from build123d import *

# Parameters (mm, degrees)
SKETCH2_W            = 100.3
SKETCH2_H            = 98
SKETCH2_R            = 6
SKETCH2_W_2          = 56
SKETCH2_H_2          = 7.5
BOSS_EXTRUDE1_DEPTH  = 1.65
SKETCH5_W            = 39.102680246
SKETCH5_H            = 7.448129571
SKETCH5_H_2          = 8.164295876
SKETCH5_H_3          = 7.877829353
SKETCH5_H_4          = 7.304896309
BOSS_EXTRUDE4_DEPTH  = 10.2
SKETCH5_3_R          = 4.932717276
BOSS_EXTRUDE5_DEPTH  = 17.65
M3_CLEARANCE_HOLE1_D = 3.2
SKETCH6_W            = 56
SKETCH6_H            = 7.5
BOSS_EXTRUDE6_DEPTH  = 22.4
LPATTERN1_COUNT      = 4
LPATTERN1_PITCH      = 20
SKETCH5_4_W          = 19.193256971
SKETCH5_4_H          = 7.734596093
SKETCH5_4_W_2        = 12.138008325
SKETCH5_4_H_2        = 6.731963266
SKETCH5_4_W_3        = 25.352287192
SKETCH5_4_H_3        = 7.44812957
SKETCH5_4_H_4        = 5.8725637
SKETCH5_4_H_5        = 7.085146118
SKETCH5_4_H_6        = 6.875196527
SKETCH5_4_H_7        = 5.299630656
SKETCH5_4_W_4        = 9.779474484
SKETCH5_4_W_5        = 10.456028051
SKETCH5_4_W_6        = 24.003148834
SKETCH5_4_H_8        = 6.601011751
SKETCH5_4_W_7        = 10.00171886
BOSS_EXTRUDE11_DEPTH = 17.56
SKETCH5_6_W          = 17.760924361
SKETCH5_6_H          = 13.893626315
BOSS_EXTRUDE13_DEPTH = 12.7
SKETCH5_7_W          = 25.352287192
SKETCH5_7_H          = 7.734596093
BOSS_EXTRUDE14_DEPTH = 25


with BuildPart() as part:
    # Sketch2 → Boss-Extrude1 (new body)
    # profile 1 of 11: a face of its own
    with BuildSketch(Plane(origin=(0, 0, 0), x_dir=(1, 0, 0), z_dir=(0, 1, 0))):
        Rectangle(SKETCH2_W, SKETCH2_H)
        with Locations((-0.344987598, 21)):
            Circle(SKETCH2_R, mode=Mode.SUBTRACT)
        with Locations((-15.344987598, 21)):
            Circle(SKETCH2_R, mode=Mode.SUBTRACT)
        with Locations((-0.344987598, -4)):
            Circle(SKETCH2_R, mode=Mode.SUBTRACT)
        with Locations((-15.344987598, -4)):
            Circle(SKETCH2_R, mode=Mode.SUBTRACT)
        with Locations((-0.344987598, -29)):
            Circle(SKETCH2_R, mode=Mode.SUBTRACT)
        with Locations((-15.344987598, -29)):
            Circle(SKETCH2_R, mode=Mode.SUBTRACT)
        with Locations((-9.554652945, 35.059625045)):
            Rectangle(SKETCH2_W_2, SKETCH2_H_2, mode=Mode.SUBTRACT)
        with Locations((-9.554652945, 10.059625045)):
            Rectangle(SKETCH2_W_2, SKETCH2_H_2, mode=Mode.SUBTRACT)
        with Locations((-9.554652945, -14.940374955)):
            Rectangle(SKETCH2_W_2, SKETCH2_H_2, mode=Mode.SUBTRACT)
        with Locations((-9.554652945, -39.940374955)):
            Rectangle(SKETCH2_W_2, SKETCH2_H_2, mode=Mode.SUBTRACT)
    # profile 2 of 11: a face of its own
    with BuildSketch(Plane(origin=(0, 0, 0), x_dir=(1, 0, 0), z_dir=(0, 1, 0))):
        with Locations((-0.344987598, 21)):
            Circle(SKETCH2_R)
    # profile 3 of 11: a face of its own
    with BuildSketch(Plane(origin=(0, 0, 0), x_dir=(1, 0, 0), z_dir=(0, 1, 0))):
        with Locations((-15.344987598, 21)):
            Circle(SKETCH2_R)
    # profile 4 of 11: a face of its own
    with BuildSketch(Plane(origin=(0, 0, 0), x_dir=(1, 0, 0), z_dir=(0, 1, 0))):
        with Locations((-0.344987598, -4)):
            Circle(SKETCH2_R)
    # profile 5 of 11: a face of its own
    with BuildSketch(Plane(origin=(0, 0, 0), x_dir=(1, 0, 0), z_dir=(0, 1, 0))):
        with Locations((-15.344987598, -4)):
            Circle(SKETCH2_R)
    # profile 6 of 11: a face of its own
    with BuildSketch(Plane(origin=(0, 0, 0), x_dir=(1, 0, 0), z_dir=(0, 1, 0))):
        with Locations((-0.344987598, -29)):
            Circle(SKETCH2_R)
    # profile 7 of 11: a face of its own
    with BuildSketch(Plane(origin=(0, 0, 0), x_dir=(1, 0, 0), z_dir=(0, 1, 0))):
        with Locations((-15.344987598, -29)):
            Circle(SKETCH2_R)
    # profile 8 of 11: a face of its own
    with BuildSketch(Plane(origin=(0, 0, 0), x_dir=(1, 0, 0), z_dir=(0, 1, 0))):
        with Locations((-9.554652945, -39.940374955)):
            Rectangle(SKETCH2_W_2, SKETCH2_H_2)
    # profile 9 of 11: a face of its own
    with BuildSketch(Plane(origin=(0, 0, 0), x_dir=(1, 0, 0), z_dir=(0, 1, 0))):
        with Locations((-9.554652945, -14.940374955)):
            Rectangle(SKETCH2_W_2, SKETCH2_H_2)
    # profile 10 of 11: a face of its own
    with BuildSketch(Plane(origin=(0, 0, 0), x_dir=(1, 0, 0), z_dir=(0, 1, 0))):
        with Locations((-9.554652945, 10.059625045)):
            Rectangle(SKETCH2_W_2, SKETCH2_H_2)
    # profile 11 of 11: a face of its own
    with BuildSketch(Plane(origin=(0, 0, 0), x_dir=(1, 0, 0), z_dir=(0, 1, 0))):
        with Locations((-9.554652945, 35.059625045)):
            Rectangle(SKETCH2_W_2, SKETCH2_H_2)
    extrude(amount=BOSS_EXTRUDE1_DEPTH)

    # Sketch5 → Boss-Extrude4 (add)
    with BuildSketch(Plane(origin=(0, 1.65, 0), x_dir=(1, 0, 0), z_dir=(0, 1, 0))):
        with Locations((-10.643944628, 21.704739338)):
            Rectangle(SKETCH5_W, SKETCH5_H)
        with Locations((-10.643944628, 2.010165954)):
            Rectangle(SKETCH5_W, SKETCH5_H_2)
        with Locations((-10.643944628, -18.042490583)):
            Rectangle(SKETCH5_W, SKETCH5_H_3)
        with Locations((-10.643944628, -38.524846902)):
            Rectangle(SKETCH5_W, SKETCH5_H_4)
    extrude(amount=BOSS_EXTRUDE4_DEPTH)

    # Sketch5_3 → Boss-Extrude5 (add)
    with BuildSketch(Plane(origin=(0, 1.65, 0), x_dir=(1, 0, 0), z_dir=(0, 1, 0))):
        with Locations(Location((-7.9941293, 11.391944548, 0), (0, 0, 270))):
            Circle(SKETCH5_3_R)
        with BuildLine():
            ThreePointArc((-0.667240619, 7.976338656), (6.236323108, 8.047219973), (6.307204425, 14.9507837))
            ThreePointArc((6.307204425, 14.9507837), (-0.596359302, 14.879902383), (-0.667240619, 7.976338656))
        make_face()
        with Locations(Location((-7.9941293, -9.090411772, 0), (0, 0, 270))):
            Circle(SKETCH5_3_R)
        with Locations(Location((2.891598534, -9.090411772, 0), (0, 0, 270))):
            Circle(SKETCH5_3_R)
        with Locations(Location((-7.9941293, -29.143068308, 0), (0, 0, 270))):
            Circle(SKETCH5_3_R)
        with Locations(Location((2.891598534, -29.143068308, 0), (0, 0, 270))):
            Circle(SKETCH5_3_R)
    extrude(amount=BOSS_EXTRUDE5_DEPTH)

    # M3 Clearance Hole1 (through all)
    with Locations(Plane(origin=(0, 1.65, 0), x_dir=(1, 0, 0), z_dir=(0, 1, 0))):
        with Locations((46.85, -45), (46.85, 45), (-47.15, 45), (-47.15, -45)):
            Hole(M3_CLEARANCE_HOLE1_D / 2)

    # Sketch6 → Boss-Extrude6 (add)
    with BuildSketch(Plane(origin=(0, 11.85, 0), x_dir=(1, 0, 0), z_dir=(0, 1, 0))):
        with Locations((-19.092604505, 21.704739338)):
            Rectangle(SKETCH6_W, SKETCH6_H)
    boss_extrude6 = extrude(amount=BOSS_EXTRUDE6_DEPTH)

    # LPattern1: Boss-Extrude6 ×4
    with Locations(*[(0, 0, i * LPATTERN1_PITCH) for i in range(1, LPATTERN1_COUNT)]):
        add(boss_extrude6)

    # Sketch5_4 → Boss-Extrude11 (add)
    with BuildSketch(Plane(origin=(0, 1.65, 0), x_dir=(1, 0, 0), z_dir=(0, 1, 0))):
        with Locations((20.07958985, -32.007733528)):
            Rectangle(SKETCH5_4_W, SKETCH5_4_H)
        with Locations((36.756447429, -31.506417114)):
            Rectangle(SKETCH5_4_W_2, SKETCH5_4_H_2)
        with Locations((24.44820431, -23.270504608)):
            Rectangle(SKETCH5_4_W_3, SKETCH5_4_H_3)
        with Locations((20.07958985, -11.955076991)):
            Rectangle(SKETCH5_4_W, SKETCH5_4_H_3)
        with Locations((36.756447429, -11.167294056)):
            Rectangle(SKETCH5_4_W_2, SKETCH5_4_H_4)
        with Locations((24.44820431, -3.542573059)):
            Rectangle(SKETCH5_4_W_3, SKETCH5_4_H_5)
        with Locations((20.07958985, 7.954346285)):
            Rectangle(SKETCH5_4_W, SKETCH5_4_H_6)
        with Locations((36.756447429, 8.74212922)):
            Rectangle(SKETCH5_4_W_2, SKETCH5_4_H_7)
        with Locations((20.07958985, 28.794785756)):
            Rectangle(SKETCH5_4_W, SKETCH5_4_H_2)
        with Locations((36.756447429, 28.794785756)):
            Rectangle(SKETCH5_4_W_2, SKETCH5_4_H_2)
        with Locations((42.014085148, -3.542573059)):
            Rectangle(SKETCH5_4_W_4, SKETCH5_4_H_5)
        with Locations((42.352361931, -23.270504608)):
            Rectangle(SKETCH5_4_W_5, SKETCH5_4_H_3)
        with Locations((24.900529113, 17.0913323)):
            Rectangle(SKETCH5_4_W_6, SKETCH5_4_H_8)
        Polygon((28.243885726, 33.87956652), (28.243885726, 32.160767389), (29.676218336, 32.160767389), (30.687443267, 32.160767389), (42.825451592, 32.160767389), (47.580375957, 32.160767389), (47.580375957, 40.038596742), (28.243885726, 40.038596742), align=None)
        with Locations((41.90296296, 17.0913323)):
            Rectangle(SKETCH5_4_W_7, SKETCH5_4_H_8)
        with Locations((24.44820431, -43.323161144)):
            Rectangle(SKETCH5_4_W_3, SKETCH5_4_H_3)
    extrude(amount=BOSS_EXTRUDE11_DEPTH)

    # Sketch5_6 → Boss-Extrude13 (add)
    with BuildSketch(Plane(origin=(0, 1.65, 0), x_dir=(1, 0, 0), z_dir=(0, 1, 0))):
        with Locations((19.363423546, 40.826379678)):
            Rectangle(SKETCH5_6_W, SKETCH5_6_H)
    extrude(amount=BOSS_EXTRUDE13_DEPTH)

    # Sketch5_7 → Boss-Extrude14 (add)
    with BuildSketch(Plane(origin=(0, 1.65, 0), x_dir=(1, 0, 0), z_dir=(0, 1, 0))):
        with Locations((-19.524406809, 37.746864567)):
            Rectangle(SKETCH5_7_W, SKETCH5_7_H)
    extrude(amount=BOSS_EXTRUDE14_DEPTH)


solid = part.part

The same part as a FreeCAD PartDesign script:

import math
import FreeCAD as App
import Part
import Sketcher

V = App.Vector


def add_polygon(sketch, points):
    """Adds a closed chain of lines whose ends are joined by coincident constraints."""
    first, n = sketch.GeometryCount, len(points)
    for a, b in zip(points, points[1:] + points[:1]):
        sketch.addGeometry(Part.LineSegment(App.Vector(*a, 0), App.Vector(*b, 0)), False)
    for i in range(n):
        sketch.addConstraint(Sketcher.Constraint("Coincident", first + i, 2, first + (i + 1) % n, 1))

doc = App.newDocument("Part")
body = doc.addObject("PartDesign::Body", "Body")

# Sketch on XZ plane
sketch1 = body.newObject("Sketcher::SketchObject", "Sketch")
sketch1.AttachmentSupport = (doc.getObject("XZ_Plane"), [""])
sketch1.MapMode = "FlatFace"
add_polygon(sketch1, [(-50, -49), (-50, 49), (50, 49), (50, -49)])  # lines 0-3
sketch1.addConstraint([
    Sketcher.Constraint("Vertical", 0),
    Sketcher.Constraint("Horizontal", 1),
    Sketcher.Constraint("Vertical", 2),
    Sketcher.Constraint("Horizontal", 3),
    Sketcher.Constraint("Symmetric", 0, 2, 2, 2, -1, 1),
    Sketcher.Constraint("DistanceY", 0, 1, 0, 2, 98.0),
    Sketcher.Constraint("DistanceX", 1, 1, 1, 2, 100.3),
])
pad1 = body.newObject("PartDesign::Pad", "Pad")
pad1.Profile = sketch1
pad1.Length = 1.65
pad1.Reversed = True

# Sketch on XZ plane
sketch2 = body.newObject("Sketcher::SketchObject", "Sketch001")
sketch2.AttachmentSupport = (doc.getObject("XZ_Plane"), [""])
sketch2.MapMode = "FlatFace"
sketch2.AttachmentOffset = App.Placement(V(0, 0, -1.65), App.Rotation())
add_polygon(sketch2, [(-30, -25), (-30, -18), (9, -18), (9, -25)])  # lines 0-3
add_polygon(sketch2, [(-30, -6), (-30, 2), (9, 2), (9, -6)])  # lines 4-7
add_polygon(sketch2, [(-30, 14), (-30, 22), (9, 22), (9, 14)])  # lines 8-11
add_polygon(sketch2, [(-30, 35), (-30, 42), (9, 42), (9, 35)])  # lines 12-15
sketch2.addConstraint([
    Sketcher.Constraint("Vertical", 0),
    Sketcher.Constraint("Horizontal", 1),
    Sketcher.Constraint("Vertical", 2),
    Sketcher.Constraint("Horizontal", 3),
    Sketcher.Constraint("Vertical", 4),
    Sketcher.Constraint("Horizontal", 5),
    Sketcher.Constraint("Vertical", 6),
    Sketcher.Constraint("Horizontal", 7),
    Sketcher.Constraint("Vertical", 8),
    Sketcher.Constraint("Horizontal", 9),
    Sketcher.Constraint("Vertical", 10),
    Sketcher.Constraint("Horizontal", 11),
    Sketcher.Constraint("Vertical", 12),
    Sketcher.Constraint("Horizontal", 13),
    Sketcher.Constraint("Vertical", 14),
    Sketcher.Constraint("Horizontal", 15),
    Sketcher.Constraint("Vertical", 3, 2, 4, 2),
    Sketcher.Constraint("Vertical", 2, 2, 5, 2),
    Sketcher.Constraint("Vertical", 7, 2, 8, 2),
    Sketcher.Constraint("Vertical", 6, 2, 9, 2),
    Sketcher.Constraint("Vertical", 11, 2, 12, 2),
    Sketcher.Constraint("Vertical", 10, 2, 13, 2),
    Sketcher.Constraint("DistanceX", 1, 1, 1, 2, 39.10268),
    Sketcher.Constraint("DistanceY", 0, 1, 0, 2, 7.44813),
    Sketcher.Constraint("DistanceY", 8, 1, 8, 2, 7.877829),
    Sketcher.Constraint("DistanceY", -1, 1, 14, 2, 34.872399),
    Sketcher.Constraint("DistanceY", 4, 1, 4, 2, 8.164296),
    Sketcher.Constraint("DistanceY", 12, 1, 12, 2, 7.304896),
    Sketcher.Constraint("DistanceY", -1, 1, 4, 2, 2.071982),
    Sketcher.Constraint("DistanceY", 1, 2, 6, 2, 11.888361),
    Sketcher.Constraint("DistanceY", 7, 2, 8, 2, 28.073719),
    Sketcher.Constraint("DistanceX", 0, 2, -1, 1, 30.195285),
])
pad2 = body.newObject("PartDesign::Pad", "Pad001")
pad2.Profile = sketch2
pad2.Length = 10.2
pad2.Reversed = True

# Sketch on XZ plane
sketch3 = body.newObject("Sketcher::SketchObject", "Sketch002")
sketch3.AttachmentSupport = (doc.getObject("XZ_Plane"), [""])
sketch3.MapMode = "FlatFace"
sketch3.AttachmentOffset = App.Placement(V(0, 0, -1.65), App.Rotation())
sketch3.addGeometry([
    Part.Circle(V(-8, -11.4, 0), V(0, 0, 1), 4.9),  # 0
    Part.ArcOfCircle(Part.Circle(V(2.7, -11.5, 0), V(0, 0, 1), 4.9), math.radians(-44), math.radians(134)),  # 1
    Part.ArcOfCircle(Part.Circle(V(2.9, -11.4, 0), V(0, 0, 1), 4.9), math.radians(136), math.radians(314)),  # 2
    Part.Circle(V(-8, 9.1, 0), V(0, 0, 1), 4.9),  # 3
    Part.Circle(V(2.9, 9.1, 0), V(0, 0, 1), 4.9),  # 4
    Part.Circle(V(-8, 29.1, 0), V(0, 0, 1), 4.9),  # 5
    Part.Circle(V(2.9, 29.1, 0), V(0, 0, 1), 4.9),  # 6
], False)
sketch3.addConstraint([
    Sketcher.Constraint("Coincident", 1, 1, 2, 2),
    Sketcher.Constraint("Coincident", 2, 1, 1, 2),
    Sketcher.Constraint("Equal", 0, 1),
    Sketcher.Constraint("Equal", 1, 2),
    Sketcher.Constraint("Equal", 2, 3),
    Sketcher.Constraint("Equal", 3, 4),
    Sketcher.Constraint("Equal", 4, 5),
    Sketcher.Constraint("Equal", 5, 6),
    Sketcher.Constraint("Horizontal", 0, 3, 2, 3),
    Sketcher.Constraint("Horizontal", 3, 3, 4, 3),
    Sketcher.Constraint("Horizontal", 5, 3, 6, 3),
    Sketcher.Constraint("Vertical", 0, 3, 3, 3),
    Sketcher.Constraint("Vertical", 2, 3, 4, 3),
    Sketcher.Constraint("Vertical", 3, 3, 5, 3),
    Sketcher.Constraint("Vertical", 4, 3, 6, 3),
    Sketcher.Constraint("Diameter", 0, 9.865435),
    Sketcher.Constraint("DistanceX", -1, 1, 2, 3, 2.891599),
    Sketcher.Constraint("DistanceX", 0, 3, -1, 1, 7.994129),
    Sketcher.Constraint("DistanceY", -1, 1, 3, 3, 9.090412),
    Sketcher.Constraint("DistanceY", -1, 1, 5, 3, 29.143068),
    Sketcher.Constraint("DistanceX", 2, 1, -1, 1, 0.667241),
    Sketcher.Constraint("DistanceY", 2, 1, -1, 1, 7.976339),
    Sketcher.Constraint("DistanceY", 1, 3, 3, 3, 20.62559),
])
pad3 = body.newObject("PartDesign::Pad", "Pad002")
pad3.Profile = sketch3
pad3.Length = 17.65
pad3.Reversed = True

# Sketch on XZ plane
sketch4 = body.newObject("Sketcher::SketchObject", "Sketch003")
sketch4.AttachmentSupport = (doc.getObject("XZ_Plane"), [""])
sketch4.MapMode = "FlatFace"
sketch4.AttachmentOffset = App.Placement(V(0, 0, -1.65), App.Rotation())
sketch4.addGeometry([
    Part.Circle(V(46.9, 45, 0), V(0, 0, 1), 1.6),
    Part.Circle(V(46.9, -45, 0), V(0, 0, 1), 1.6),
    Part.Circle(V(-47.1, -45, 0), V(0, 0, 1), 1.6),
    Part.Circle(V(-47.1, 45, 0), V(0, 0, 1), 1.6),
], False)
sketch4.addConstraint([
    Sketcher.Constraint("Equal", 0, 1),
    Sketcher.Constraint("Equal", 1, 2),
    Sketcher.Constraint("Equal", 2, 3),
    Sketcher.Constraint("Symmetric", 0, 3, 1, 3, -1),
    Sketcher.Constraint("Symmetric", 2, 3, 3, 3, -1),
    Sketcher.Constraint("Horizontal", 1, 3, 2, 3),
    Sketcher.Constraint("Diameter", 0, 3.2),
    Sketcher.Constraint("DistanceY", -1, 1, 0, 3, 45.0),
    Sketcher.Constraint("DistanceX", 2, 3, 1, 3, 94.0),
    Sketcher.Constraint("DistanceX", -1, 1, 0, 3, 46.85),
])
doc.recompute()
hole = body.newObject("PartDesign::Hole", "Hole")
hole.Profile = sketch4
hole.ThreadType = "None"
hole.Diameter = 3.2
hole.DepthType = "ThroughAll"
hole.Reversed = True

# Sketch on XZ plane
sketch5 = body.newObject("Sketcher::SketchObject", "Sketch004")
sketch5.AttachmentSupport = (doc.getObject("XZ_Plane"), [""])
sketch5.MapMode = "FlatFace"
sketch5.AttachmentOffset = App.Placement(V(0, 0, -11.85), App.Rotation())
add_polygon(sketch5, [(-47, -25), (-47, -18), (9, -18), (9, -25)])  # lines 0-3
sketch5.addConstraint([
    Sketcher.Constraint("Vertical", 0),
    Sketcher.Constraint("Horizontal", 1),
    Sketcher.Constraint("Vertical", 2),
    Sketcher.Constraint("Horizontal", 3),
    Sketcher.Constraint("DistanceX", 1, 1, 1, 2, 56.0),
    Sketcher.Constraint("DistanceY", 0, 1, 0, 2, 7.5),
    Sketcher.Constraint("DistanceY", 0, 2, -1, 1, 17.954739),
    Sketcher.Constraint("DistanceX", 0, 2, -1, 1, 47.092605),
])
pad4 = body.newObject("PartDesign::Pad", "Pad003")
pad4.Profile = sketch5
pad4.Length = 22.4
pad4.Reversed = True
doc.recompute()

linearpattern = body.newObject("PartDesign::LinearPattern", "LinearPattern")
linearpattern.Originals = [pad4]
linearpattern.Direction = (doc.getObject("Z_Axis"), [""])
linearpattern.Mode = "offset"
linearpattern.Offset = 20
linearpattern.Occurrences = 4
body.Tip = linearpattern

# Sketch on XZ plane
sketch6 = body.newObject("Sketcher::SketchObject", "Sketch005")
sketch6.AttachmentSupport = (doc.getObject("XZ_Plane"), [""])
sketch6.MapMode = "FlatFace"
sketch6.AttachmentOffset = App.Placement(V(0, 0, -1.65), App.Rotation())
add_polygon(sketch6, [(10.5, 28.1), (10.5, 35.9), (29.7, 35.9), (29.7, 28.1)])  # lines 0-3
add_polygon(sketch6, [(30.7, 28.1), (30.7, 34.9), (42.8, 34.9), (42.8, 28.1)])  # lines 4-7
add_polygon(sketch6, [(11.8, 19.5), (11.8, 27), (47.6, 27), (47.6, 19.5)])  # lines 8-11
add_polygon(sketch6, [(10.5, 8.2), (10.5, 15.7), (29.7, 15.7), (29.7, 8.2)])  # lines 12-15
add_polygon(sketch6, [(30.7, 8.2), (30.7, 14.1), (42.8, 14.1), (42.8, 8.2)])  # lines 16-19
add_polygon(sketch6, [(11.8, 0), (11.8, 7.1), (46.9, 7.1), (46.9, 0)])  # lines 20-23
add_polygon(sketch6, [(10.5, -11.4), (10.5, -4.5), (29.7, -4.5), (29.7, -11.4)])  # lines 24-27
add_polygon(sketch6, [(30.7, -11.4), (30.7, -6.1), (42.8, -6.1), (42.8, -11.4)])  # lines 28-31
add_polygon(sketch6, [(10.5, -32.2), (10.5, -25.4), (29.7, -25.4), (29.7, -32.2), (30.7, -32.2), (30.7, -25.4), (42.8, -25.4), (42.8, -32.2), (47.6, -32.2), (47.6, -40), (28.2, -40), (28.2, -32.2)])  # lines 32-43
add_polygon(sketch6, [(12.9, -20.4), (12.9, -13.8), (46.9, -13.8), (46.9, -20.4)])  # lines 44-47
add_polygon(sketch6, [(11.8, 39.6), (11.8, 47), (37.1, 47), (37.1, 39.6)])  # lines 48-51
sketch6.addConstraint([
    Sketcher.Constraint("Vertical", 0),
    Sketcher.Constraint("Horizontal", 1),
    Sketcher.Constraint("Vertical", 2),
    Sketcher.Constraint("Horizontal", 3),
    Sketcher.Constraint("Vertical", 4),
    Sketcher.Constraint("Horizontal", 5),
    Sketcher.Constraint("Vertical", 6),
    Sketcher.Constraint("Horizontal", 7),
    Sketcher.Constraint("Vertical", 8),
    Sketcher.Constraint("Horizontal", 9),
    Sketcher.Constraint("Vertical", 10),
    Sketcher.Constraint("Horizontal", 11),
    Sketcher.Constraint("Vertical", 12),
    Sketcher.Constraint("Horizontal", 13),
    Sketcher.Constraint("Vertical", 14),
    Sketcher.Constraint("Horizontal", 15),
    Sketcher.Constraint("Vertical", 16),
    Sketcher.Constraint("Horizontal", 17),
    Sketcher.Constraint("Vertical", 18),
    Sketcher.Constraint("Horizontal", 19),
    Sketcher.Constraint("Vertical", 20),
    Sketcher.Constraint("Horizontal", 21),
    Sketcher.Constraint("Vertical", 22),
    Sketcher.Constraint("Horizontal", 23),
    Sketcher.Constraint("Vertical", 24),
    Sketcher.Constraint("Horizontal", 25),
    Sketcher.Constraint("Vertical", 26),
    Sketcher.Constraint("Horizontal", 27),
    Sketcher.Constraint("Vertical", 28),
    Sketcher.Constraint("Horizontal", 29),
    Sketcher.Constraint("Vertical", 30),
    Sketcher.Constraint("Horizontal", 31),
    Sketcher.Constraint("Vertical", 32),
    Sketcher.Constraint("Horizontal", 33),
    Sketcher.Constraint("Vertical", 34),
    Sketcher.Constraint("Horizontal", 35),
    Sketcher.Constraint("Vertical", 36),
    Sketcher.Constraint("Horizontal", 37),
    Sketcher.Constraint("Vertical", 38),
    Sketcher.Constraint("Horizontal", 39),
    Sketcher.Constraint("Vertical", 40),
    Sketcher.Constraint("Horizontal", 41),
    Sketcher.Constraint("Vertical", 42),
    Sketcher.Constraint("Horizontal", 43),
    Sketcher.Constraint("Vertical", 44),
    Sketcher.Constraint("Horizontal", 45),
    Sketcher.Constraint("Vertical", 46),
    Sketcher.Constraint("Horizontal", 47),
    Sketcher.Constraint("Vertical", 48),
    Sketcher.Constraint("Horizontal", 49),
    Sketcher.Constraint("Vertical", 50),
    Sketcher.Constraint("Horizontal", 51),
    Sketcher.Constraint("PointOnObject", 22, 2, -1),
    Sketcher.Constraint("Horizontal", 3, 2, 6, 2),
    Sketcher.Constraint("Horizontal", 15, 2, 18, 2),
    Sketcher.Constraint("Horizontal", 27, 2, 30, 2),
    Sketcher.Constraint("Horizontal", 33, 2, 36, 2),
    Sketcher.Constraint("Horizontal", 35, 2, 38, 2),
    Sketcher.Constraint("Horizontal", 39, 2, 42, 2),
    Sketcher.Constraint("Vertical", 3, 2, 12, 2),
    Sketcher.Constraint("Vertical", 2, 2, 13, 2),
    Sketcher.Constraint("Vertical", 7, 2, 16, 2),
    Sketcher.Constraint("Vertical", 6, 2, 17, 2),
    Sketcher.Constraint("Vertical", 11, 2, 20, 2),
    Sketcher.Constraint("Vertical", 15, 2, 24, 2),
    Sketcher.Constraint("Vertical", 14, 2, 25, 2),
    Sketcher.Constraint("Vertical", 19, 2, 28, 2),
    Sketcher.Constraint("Vertical", 18, 2, 29, 2),
    Sketcher.Constraint("Vertical", 27, 2, 32, 2),
    Sketcher.Constraint("Vertical", 26, 2, 33, 2),
    Sketcher.Constraint("Vertical", 31, 2, 35, 2),
    Sketcher.Constraint("Vertical", 30, 2, 37, 2),
    Sketcher.Constraint("Vertical", 10, 2, 39, 2),
    Sketcher.Constraint("Vertical", 22, 2, 45, 2),
    Sketcher.Constraint("Vertical", 23, 2, 48, 2),
    Sketcher.Constraint("Equal", 10, 12),
    Sketcher.Constraint("Equal", 6, 32),
    Sketcher.Constraint("Equal", 14, 48),
    Sketcher.Constraint("DistanceX", 5, 1, 5, 2, 12.138008),
    Sketcher.Constraint("DistanceX", 21, 1, 21, 2, 35.131762),
    Sketcher.Constraint("DistanceX", 41, 2, 41, 1, 19.33649),
    Sketcher.Constraint("DistanceY", 8, 1, 8, 2, 7.44813),
    Sketcher.Constraint("DistanceY", 28, 1, 28, 2, 5.299631),
    Sketcher.Constraint("DistanceY", 40, 2, 40, 1, 7.877829),
    Sketcher.Constraint("DistanceY", 44, 1, 44, 2, 6.601012),
    Sketcher.Constraint("DistanceY", -1, 1, 4, 2, 34.872399),
    Sketcher.Constraint("DistanceX", 3, 2, 8, 2, 1.289099),
    Sketcher.Constraint("DistanceY", 12, 2, 11, 2, 3.867298),
    Sketcher.Constraint("DistanceX", 1, 1, 1, 2, 19.193257),
    Sketcher.Constraint("DistanceX", 9, 1, 9, 2, 35.808315),
    Sketcher.Constraint("DistanceX", 35, 1, 35, 2, 1.011225),
    Sketcher.Constraint("DistanceX", 45, 1, 45, 2, 34.004868),
    Sketcher.Constraint("DistanceX", 49, 1, 49, 2, 25.352287),
    Sketcher.Constraint("DistanceY", 0, 1, 0, 2, 7.734596),
    Sketcher.Constraint("DistanceY", 4, 1, 4, 2, 6.731963),
    Sketcher.Constraint("DistanceY", 16, 1, 16, 2, 5.872564),
    Sketcher.Constraint("DistanceY", 20, 1, 20, 2, 7.085146),
    Sketcher.Constraint("DistanceY", 24, 1, 24, 2, 6.875197),
    Sketcher.Constraint("DistanceX", -1, 1, 0, 2, 10.482961),
    Sketcher.Constraint("DistanceY", -1, 1, 8, 2, 26.994569),
    Sketcher.Constraint("DistanceY", 24, 2, -1, 1, 4.516748),
    Sketcher.Constraint("DistanceY", 46, 2, -1, 1, 20.391838),
    Sketcher.Constraint("DistanceY", 32, 2, 27, 2, 14.03686),
    Sketcher.Constraint("DistanceY", 3, 2, 48, 2, 18.90679),
])
pad5 = body.newObject("PartDesign::Pad", "Pad004")
pad5.Profile = sketch6
pad5.Length = 17.56
pad5.Reversed = True

# Sketch on XZ plane
sketch7 = body.newObject("Sketcher::SketchObject", "Sketch006")
sketch7.AttachmentSupport = (doc.getObject("XZ_Plane"), [""])
sketch7.MapMode = "FlatFace"
sketch7.AttachmentOffset = App.Placement(V(0, 0, -1.65), App.Rotation())
add_polygon(sketch7, [(10, -48), (10, -34), (28, -34), (28, -48)])  # lines 0-3
sketch7.addConstraint([
    Sketcher.Constraint("Vertical", 0),
    Sketcher.Constraint("Horizontal", 1),
    Sketcher.Constraint("Vertical", 2),
    Sketcher.Constraint("Horizontal", 3),
    Sketcher.Constraint("DistanceX", 1, 1, 1, 2, 17.760924),
    Sketcher.Constraint("DistanceY", 0, 1, 0, 2, 13.893626),
    Sketcher.Constraint("DistanceX", -1, 1, 0, 2, 10.482961),
    Sketcher.Constraint("DistanceY", 0, 2, -1, 1, 33.879567),
])
pad6 = body.newObject("PartDesign::Pad", "Pad005")
pad6.Profile = sketch7
pad6.Length = 12.7
pad6.Reversed = True

# Sketch on XZ plane
sketch8 = body.newObject("Sketcher::SketchObject", "Sketch007")
sketch8.AttachmentSupport = (doc.getObject("XZ_Plane"), [""])
sketch8.MapMode = "FlatFace"
sketch8.AttachmentOffset = App.Placement(V(0, 0, -1.65), App.Rotation())
add_polygon(sketch8, [(-32, -42), (-32, -34), (-7, -34), (-7, -42)])  # lines 0-3
sketch8.addConstraint([
    Sketcher.Constraint("Vertical", 0),
    Sketcher.Constraint("Horizontal", 1),
    Sketcher.Constraint("Vertical", 2),
    Sketcher.Constraint("Horizontal", 3),
    Sketcher.Constraint("DistanceX", 1, 1, 1, 2, 25.352287),
    Sketcher.Constraint("DistanceY", 0, 1, 0, 2, 7.734596),
    Sketcher.Constraint("DistanceX", 0, 2, -1, 1, 32.20055),
    Sketcher.Constraint("DistanceY", 0, 2, -1, 1, 33.879567),
])
pad7 = body.newObject("PartDesign::Pad", "Pad006")
pad7.Profile = sketch8
pad7.Length = 25
pad7.Reversed = True

doc.recompute()
